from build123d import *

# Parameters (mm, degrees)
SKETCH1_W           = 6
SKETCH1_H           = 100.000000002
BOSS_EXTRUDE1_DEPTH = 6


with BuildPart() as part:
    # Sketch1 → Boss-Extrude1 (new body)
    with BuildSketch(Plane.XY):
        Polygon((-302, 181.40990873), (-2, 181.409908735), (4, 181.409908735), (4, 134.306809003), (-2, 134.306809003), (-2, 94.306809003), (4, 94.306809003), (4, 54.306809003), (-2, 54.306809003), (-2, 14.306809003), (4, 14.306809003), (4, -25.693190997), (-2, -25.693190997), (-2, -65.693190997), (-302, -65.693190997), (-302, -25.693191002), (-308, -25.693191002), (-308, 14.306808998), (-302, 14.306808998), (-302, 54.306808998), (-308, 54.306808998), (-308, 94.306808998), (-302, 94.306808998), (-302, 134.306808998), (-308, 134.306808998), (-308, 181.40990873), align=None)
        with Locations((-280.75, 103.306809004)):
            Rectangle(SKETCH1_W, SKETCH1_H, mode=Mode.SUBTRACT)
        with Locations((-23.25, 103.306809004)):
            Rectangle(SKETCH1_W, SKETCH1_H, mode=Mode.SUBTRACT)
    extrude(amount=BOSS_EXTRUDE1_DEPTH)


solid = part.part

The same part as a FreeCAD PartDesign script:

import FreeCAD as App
import Part
import Sketcher
from FreeCAD import Vector

doc = App.newDocument("Part")
body = doc.addObject("PartDesign::Body", "Body")

# Sketch on XY plane
sketch1 = body.newObject("Sketcher::SketchObject", "Sketch")
sketch1.AttachmentSupport = (doc.getObject("XY_Plane"), [""])
sketch1.MapMode = "FlatFace"
sketch1.addGeometry(Part.LineSegment(Vector(-2, 181, 0), Vector(-302, 181, 0)), False)
sketch1.addGeometry(Part.LineSegment(Vector(-302, 181, 0), Vector(-308, 181, 0)), False)
sketch1.addGeometry(Part.LineSegment(Vector(-308, 181, 0), Vector(-308, 134, 0)), False)
sketch1.addGeometry(Part.LineSegment(Vector(-308, 134, 0), Vector(-302, 134, 0)), False)
sketch1.addGeometry(Part.LineSegment(Vector(-302, 134, 0), Vector(-302, 94, 0)), False)
sketch1.addGeometry(Part.LineSegment(Vector(-302, 94, 0), Vector(-308, 94, 0)), False)
sketch1.addGeometry(Part.LineSegment(Vector(-308, 94, 0), Vector(-308, 54, 0)), False)
sketch1.addGeometry(Part.LineSegment(Vector(-308, 54, 0), Vector(-302, 54, 0)), False)
sketch1.addGeometry(Part.LineSegment(Vector(-302, 54, 0), Vector(-302, 14, 0)), False)
sketch1.addGeometry(Part.LineSegment(Vector(-302, 14, 0), Vector(-308, 14, 0)), False)
sketch1.addGeometry(Part.LineSegment(Vector(-308, 14, 0), Vector(-308, -26, 0)), False)
sketch1.addGeometry(Part.LineSegment(Vector(-308, -26, 0), Vector(-302, -26, 0)), False)
sketch1.addGeometry(Part.LineSegment(Vector(-302, -26, 0), Vector(-302, -66, 0)), False)
sketch1.addGeometry(Part.LineSegment(Vector(-302, -66, 0), Vector(-2, -66, 0)), False)
sketch1.addGeometry(Part.LineSegment(Vector(-2, -66, 0), Vector(-2, -26, 0)), False)
sketch1.addGeometry(Part.LineSegment(Vector(-2, -26, 0), Vector(4, -26, 0)), False)
sketch1.addGeometry(Part.LineSegment(Vector(4, -26, 0), Vector(4, 14, 0)), False)
sketch1.addGeometry(Part.LineSegment(Vector(4, 14, 0), Vector(-2, 14, 0)), False)
sketch1.addGeometry(Part.LineSegment(Vector(-2, 14, 0), Vector(-2, 54, 0)), False)
sketch1.addGeometry(Part.LineSegment(Vector(-2, 54, 0), Vector(4, 54, 0)), False)
sketch1.addGeometry(Part.LineSegment(Vector(4, 54, 0), Vector(4, 94, 0)), False)
sketch1.addGeometry(Part.LineSegment(Vector(4, 94, 0), Vector(-2, 94, 0)), False)
sketch1.addGeometry(Part.LineSegment(Vector(-2, 94, 0), Vector(-2, 134, 0)), False)
sketch1.addGeometry(Part.LineSegment(Vector(-2, 134, 0), Vector(4, 134, 0)), False)
sketch1.addGeometry(Part.LineSegment(Vector(4, 134, 0), Vector(4, 181, 0)), False)
sketch1.addGeometry(Part.LineSegment(Vector(4, 181, 0), Vector(-2, 181, 0)), False)
sketch1.addGeometry(Part.LineSegment(Vector(-26, 53, 0), Vector(-26, 153, 0)), False)
sketch1.addGeometry(Part.LineSegment(Vector(-26, 153, 0), Vector(-20, 153, 0)), False)
sketch1.addGeometry(Part.LineSegment(Vector(-20, 153, 0), Vector(-20, 53, 0)), False)
sketch1.addGeometry(Part.LineSegment(Vector(-20, 53, 0), Vector(-26, 53, 0)), False)
sketch1.addGeometry(Part.LineSegment(Vector(-284, 53, 0), Vector(-284, 153, 0)), False)
sketch1.addGeometry(Part.LineSegment(Vector(-284, 153, 0), Vector(-278, 153, 0)), False)
sketch1.addGeometry(Part.LineSegment(Vector(-278, 153, 0), Vector(-278, 53, 0)), False)
sketch1.addGeometry(Part.LineSegment(Vector(-278, 53, 0), Vector(-284, 53, 0)), False)
sketch1.addConstraint(Sketcher.Constraint("Coincident", 0, 2, 1, 1))
sketch1.addConstraint(Sketcher.Constraint("Coincident", 1, 2, 2, 1))
sketch1.addConstraint(Sketcher.Constraint("Coincident", 2, 2, 3, 1))
sketch1.addConstraint(Sketcher.Constraint("Coincident", 3, 2, 4, 1))
sketch1.addConstraint(Sketcher.Constraint("Coincident", 4, 2, 5, 1))
sketch1.addConstraint(Sketcher.Constraint("Coincident", 5, 2, 6, 1))
sketch1.addConstraint(Sketcher.Constraint("Coincident", 6, 2, 7, 1))
sketch1.addConstraint(Sketcher.Constraint("Coincident", 7, 2, 8, 1))
sketch1.addConstraint(Sketcher.Constraint("Coincident", 8, 2, 9, 1))
sketch1.addConstraint(Sketcher.Constraint("Coincident", 9, 2, 10, 1))
sketch1.addConstraint(Sketcher.Constraint("Coincident", 10, 2, 11, 1))
sketch1.addConstraint(Sketcher.Constraint("Coincident", 11, 2, 12, 1))
sketch1.addConstraint(Sketcher.Constraint("Coincident", 12, 2, 13, 1))
sketch1.addConstraint(Sketcher.Constraint("Coincident", 13, 2, 14, 1))
sketch1.addConstraint(Sketcher.Constraint("Coincident", 14, 2, 15, 1))
sketch1.addConstraint(Sketcher.Constraint("Coincident", 15, 2, 16, 1))
sketch1.addConstraint(Sketcher.Constraint("Coincident", 16, 2, 17, 1))
sketch1.addConstraint(Sketcher.Constraint("Coincident", 17, 2, 18, 1))
sketch1.addConstraint(Sketcher.Constraint("Coincident", 18, 2, 19, 1))
sketch1.addConstraint(Sketcher.Constraint("Coincident", 19, 2, 20, 1))
sketch1.addConstraint(Sketcher.Constraint("Coincident", 20, 2, 21, 1))
sketch1.addConstraint(Sketcher.Constraint("Coincident", 21, 2, 22, 1))
sketch1.addConstraint(Sketcher.Constraint("Coincident", 22, 2, 23, 1))
sketch1.addConstraint(Sketcher.Constraint("Coincident", 23, 2, 24, 1))
sketch1.addConstraint(Sketcher.Constraint("Coincident", 24, 2, 25, 1))
sketch1.addConstraint(Sketcher.Constraint("Coincident", 25, 2, 0, 1))
sketch1.addConstraint(Sketcher.Constraint("Coincident", 26, 2, 27, 1))
sketch1.addConstraint(Sketcher.Constraint("Coincident", 27, 2, 28, 1))
sketch1.addConstraint(Sketcher.Constraint("Coincident", 28, 2, 29, 1))
sketch1.addConstraint(Sketcher.Constraint("Coincident", 29, 2, 26, 1))
sketch1.addConstraint(Sketcher.Constraint("Coincident", 30, 2, 31, 1))
sketch1.addConstraint(Sketcher.Constraint("Coincident", 31, 2, 32, 1))
sketch1.addConstraint(Sketcher.Constraint("Coincident", 32, 2, 33, 1))
sketch1.addConstraint(Sketcher.Constraint("Coincident", 33, 2, 30, 1))
sketch1.addConstraint(Sketcher.Constraint("Horizontal", 0))
sketch1.addConstraint(Sketcher.Constraint("Horizontal", 1))
sketch1.addConstraint(Sketcher.Constraint("Vertical", 2))
sketch1.addConstraint(Sketcher.Constraint("Horizontal", 3))
sketch1.addConstraint(Sketcher.Constraint("Vertical", 4))
sketch1.addConstraint(Sketcher.Constraint("Horizontal", 5))
sketch1.addConstraint(Sketcher.Constraint("Vertical", 6))
sketch1.addConstraint(Sketcher.Constraint("Horizontal", 7))
sketch1.addConstraint(Sketcher.Constraint("Vertical", 8))
sketch1.addConstraint(Sketcher.Constraint("Horizontal", 9))
sketch1.addConstraint(Sketcher.Constraint("Vertical", 10))
sketch1.addConstraint(Sketcher.Constraint("Horizontal", 11))
sketch1.addConstraint(Sketcher.Constraint("Vertical", 12))
sketch1.addConstraint(Sketcher.Constraint("Horizontal", 13))
sketch1.addConstraint(Sketcher.Constraint("Vertical", 14))
sketch1.addConstraint(Sketcher.Constraint("Horizontal", 15))
sketch1.addConstraint(Sketcher.Constraint("Vertical", 16))
sketch1.addConstraint(Sketcher.Constraint("Horizontal", 17))
sketch1.addConstraint(Sketcher.Constraint("Vertical", 18))
sketch1.addConstraint(Sketcher.Constraint("Horizontal", 19))
sketch1.addConstraint(Sketcher.Constraint("Vertical", 20))
sketch1.addConstraint(Sketcher.Constraint("Horizontal", 21))
sketch1.addConstraint(Sketcher.Constraint("Vertical", 22))
sketch1.addConstraint(Sketcher.Constraint("Horizontal", 23))
sketch1.addConstraint(Sketcher.Constraint("Vertical", 24))
sketch1.addConstraint(Sketcher.Constraint("Horizontal", 25))
sketch1.addConstraint(Sketcher.Constraint("Vertical", 26))
sketch1.addConstraint(Sketcher.Constraint("Horizontal", 27))
sketch1.addConstraint(Sketcher.Constraint("Vertical", 28))
sketch1.addConstraint(Sketcher.Constraint("Horizontal", 29))
sketch1.addConstraint(Sketcher.Constraint("Vertical", 30))
sketch1.addConstraint(Sketcher.Constraint("Horizontal", 31))
sketch1.addConstraint(Sketcher.Constraint("Vertical", 32))
sketch1.addConstraint(Sketcher.Constraint("Horizontal", 33))
sketch1.addConstraint(Sketcher.Constraint("Horizontal", 11, 2, 14, 2))
sketch1.addConstraint(Sketcher.Constraint("Horizontal", 9, 2, 16, 2))
sketch1.addConstraint(Sketcher.Constraint("Horizontal", 7, 2, 18, 2))
sketch1.addConstraint(Sketcher.Constraint("Horizontal", 5, 2, 20, 2))
sketch1.addConstraint(Sketcher.Constraint("Horizontal", 3, 2, 22, 2))
sketch1.addConstraint(Sketcher.Constraint("Horizontal", 27, 2, 30, 2))
sketch1.addConstraint(Sketcher.Constraint("Horizontal", 29, 2, 32, 2))
sketch1.addConstraint(Sketcher.Constraint("Vertical", 0, 2, 3, 2))
sketch1.addConstraint(Sketcher.Constraint("Vertical", 2, 2, 5, 2))
sketch1.addConstraint(Sketcher.Constraint("Vertical", 4, 2, 7, 2))
sketch1.addConstraint(Sketcher.Constraint("Vertical", 6, 2, 9, 2))
sketch1.addConstraint(Sketcher.Constraint("Vertical", 8, 2, 11, 2))
sketch1.addConstraint(Sketcher.Constraint("Vertical", 14, 2, 17, 2))
sketch1.addConstraint(Sketcher.Constraint("Vertical", 16, 2, 19, 2))
sketch1.addConstraint(Sketcher.Constraint("Vertical", 18, 2, 21, 2))
sketch1.addConstraint(Sketcher.Constraint("Vertical", 20, 2, 23, 2))
sketch1.addConstraint(Sketcher.Constraint("Vertical", 22, 2, 25, 2))
sketch1.addConstraint(Sketcher.Constraint("Equal", 11, 15))
sketch1.addConstraint(Sketcher.Constraint("Equal", 25, 27))
sketch1.addConstraint(Sketcher.Constraint("Equal", 29, 31))
sketch1.addConstraint(Sketcher.Constraint("Equal", 4, 6))
sketch1.addConstraint(Sketcher.Constraint("Equal", 6, 8))
sketch1.addConstraint(Sketcher.Constraint("Equal", 8, 10))
sketch1.addConstraint(Sketcher.Constraint("Equal", 10, 12))
sketch1.addConstraint(Sketcher.Constraint("DistanceX", 0, 2, 0, 1, 300.0))
sketch1.addConstraint(Sketcher.Constraint("DistanceX", 1, 2, 1, 1, 6.0))
sketch1.addConstraint(Sketcher.Constraint("DistanceY", 4, 2, 4, 1, 40.0))
sketch1.addConstraint(Sketcher.Constraint("DistanceY", 26, 1, 26, 2, 100.0))
sketch1.addConstraint(Sketcher.Constraint("DistanceX", 0, 2, -1, 1, 302.0))
sketch1.addConstraint(Sketcher.Constraint("DistanceY", 22, 2, 26, 2, 19.0))
sketch1.addConstraint(Sketcher.Constraint("DistanceX", 26, 2, -1, 1, 26.25))
sketch1.addConstraint(Sketcher.Constraint("DistanceX", 30, 2, -1, 1, 283.75))
sketch1.addConstraint(Sketcher.Constraint("DistanceY", 2, 2, 2, 1, 47.1031))
sketch1.addConstraint(Sketcher.Constraint("DistanceY", -1, 1, 0, 2, 181.409909))
pad1 = body.newObject("PartDesign::Pad", "Pad")
pad1.Profile = sketch1
pad1.Length = 6

doc.recompute()
